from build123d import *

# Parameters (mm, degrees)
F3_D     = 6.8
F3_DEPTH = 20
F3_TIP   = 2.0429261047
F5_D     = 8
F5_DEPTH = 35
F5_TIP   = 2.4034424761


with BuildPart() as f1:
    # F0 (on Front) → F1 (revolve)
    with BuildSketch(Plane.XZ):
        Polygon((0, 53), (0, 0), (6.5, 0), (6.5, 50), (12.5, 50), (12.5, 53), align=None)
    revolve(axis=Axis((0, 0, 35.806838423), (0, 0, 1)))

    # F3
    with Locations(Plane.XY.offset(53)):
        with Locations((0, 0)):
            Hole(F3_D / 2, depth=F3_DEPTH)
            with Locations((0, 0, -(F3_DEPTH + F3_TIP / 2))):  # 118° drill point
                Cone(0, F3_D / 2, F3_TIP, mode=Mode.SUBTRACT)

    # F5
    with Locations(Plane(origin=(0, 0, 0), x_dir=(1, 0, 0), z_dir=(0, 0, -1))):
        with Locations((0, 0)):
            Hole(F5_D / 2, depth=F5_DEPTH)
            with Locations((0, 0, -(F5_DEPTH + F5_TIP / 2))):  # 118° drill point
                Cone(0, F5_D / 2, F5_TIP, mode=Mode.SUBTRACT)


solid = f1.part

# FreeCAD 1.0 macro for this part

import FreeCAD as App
import Part
import Sketcher
from FreeCAD import Vector
Q = App.Units.Quantity


def add_polygon(sketch, points):
    """Adds a closed chain of lines whose ends are joined by coincident constraints."""
    first, n = sketch.GeometryCount, len(points)
    for a, b in zip(points, points[1:] + points[:1]):
        sketch.addGeometry(Part.LineSegment(App.Vector(*a, 0), App.Vector(*b, 0)), False)
    for i in range(n):
        sketch.addConstraint(Sketcher.Constraint("Coincident", first + i, 2, first + (i + 1) % n, 1))

doc = App.newDocument("Part")
params = doc.addObject("Spreadsheet::Sheet", "Params")
for row, (alias, value) in enumerate([
    ("sketch1_width", "6 mm"),
    ("sketch1_height", "53 mm"),
    ("sketch1_height2", "50 mm"),
    ("sketch1_width2", "6.5 mm"),
    ("revolution_angle", "360 deg"),
    ("sketch2_diameter", "6.8 mm"),
    ("hole_diameter", "6.8 mm"),
    ("hole_depth", "20 mm"),
    ("sketch3_diameter", "8 mm"),
    ("hole2_diameter", "8 mm"),
    ("hole2_depth", "35 mm"),
], start=1):
    params.set(f"A{row}", alias)
    params.set(f"B{row}", "=" + value)
    params.setAlias(f"B{row}", alias)

body = doc.addObject("PartDesign::Body", "Body")

# Sketch on XZ plane
sketch1 = doc.addObject("Sketcher::SketchObject", "Sketch")
body.addObject(sketch1)
sketch1.AttachmentSupport = (doc.XZ_Plane, [""])
sketch1.MapMode = "FlatFace"
add_polygon(sketch1, [(0, 53), (0, 0), (6.5, 0), (6.5, 50), (12.5, 50), (12.5, 53)])  # lines 0-5
sketch1.addConstraint(Sketcher.Constraint("Vertical", 0))
sketch1.addConstraint(Sketcher.Constraint("Horizontal", 1))
sketch1.addConstraint(Sketcher.Constraint("Vertical", 2))
sketch1.addConstraint(Sketcher.Constraint("Horizontal", 3))
sketch1.addConstraint(Sketcher.Constraint("Vertical", 4))
sketch1.addConstraint(Sketcher.Constraint("Horizontal", 5))
sketch1.addConstraint(Sketcher.Constraint("Coincident", 0, 2, -1, 1))
sketch1.addConstraint(Sketcher.Constraint("DistanceX", 3, 1, 3, 2, Q("6 mm")))
sketch1.addConstraint(Sketcher.Constraint("DistanceY", 0, 2, 0, 1, Q("53 mm")))
sketch1.addConstraint(Sketcher.Constraint("DistanceY", 2, 1, 2, 2, Q("50 mm")))
sketch1.addConstraint(Sketcher.Constraint("DistanceX", 1, 1, 1, 2, Q("6.5 mm")))
sketch1.setExpression("Constraints[13]", "Params.sketch1_width")
sketch1.setExpression("Constraints[14]", "Params.sketch1_height")
sketch1.setExpression("Constraints[15]", "Params.sketch1_height2")
sketch1.setExpression("Constraints[16]", "Params.sketch1_width2")
revolution = doc.addObject("PartDesign::Revolution", "Revolution")
body.addObject(revolution)
revolution.Profile = sketch1
revolution.ReferenceAxis = (sketch1, ["V_Axis"])
revolution.setExpression("Angle", "Params.revolution_angle")

# Sketch on XY plane
sketch2 = doc.addObject("Sketcher::SketchObject", "Sketch001")
body.addObject(sketch2)
sketch2.AttachmentSupport = (doc.XY_Plane, [""])
sketch2.MapMode = "FlatFace"
sketch2.AttachmentOffset = App.Placement(Vector(0, 0, 53), App.Rotation())
sketch2.addGeometry(Part.Circle(Vector(0, 0, 0), Vector(0, 0, 1), 3.4), False)
sketch2.addConstraint(Sketcher.Constraint("Coincident", 0, 3, -1, 1))
sketch2.addConstraint(Sketcher.Constraint("Diameter", 0, Q("6.8 mm")))
sketch2.setExpression("Constraints[1]", "Params.sketch2_diameter")
doc.recompute()
hole = doc.addObject("PartDesign::Hole", "Hole")
body.addObject(hole)
hole.Profile = sketch2
hole.ThreadType = "None"
hole.setExpression("Diameter", "Params.hole_diameter")
hole.DepthType = "Dimension"
hole.setExpression("Depth", "Params.hole_depth")
hole.DrillPoint = "Angled"
hole.DrillPointAngle = 118

# Sketch on XY plane
sketch3 = doc.addObject("Sketcher::SketchObject", "Sketch002")
body.addObject(sketch3)
sketch3.AttachmentSupport = (doc.XY_Plane, [""])
sketch3.MapMode = "FlatFace"
sketch3.addGeometry(Part.Circle(Vector(0, 0, 0), Vector(0, 0, 1), 4), False)
sketch3.addConstraint(Sketcher.Constraint("Coincident", 0, 3, -1, 1))
sketch3.addConstraint(Sketcher.Constraint("Diameter", 0, Q("8 mm")))
sketch3.setExpression("Constraints[1]", "Params.sketch3_diameter")
doc.recompute()
hole2 = doc.addObject("PartDesign::Hole", "Hole001")
body.addObject(hole2)
hole2.Profile = sketch3
hole2.ThreadType = "None"
hole2.setExpression("Diameter", "Params.hole2_diameter")
hole2.DepthType = "Dimension"
hole2.setExpression("Depth", "Params.hole2_depth")
hole2.DrillPoint = "Angled"
hole2.DrillPointAngle = 118
hole2.Reversed = True

doc.recompute()
